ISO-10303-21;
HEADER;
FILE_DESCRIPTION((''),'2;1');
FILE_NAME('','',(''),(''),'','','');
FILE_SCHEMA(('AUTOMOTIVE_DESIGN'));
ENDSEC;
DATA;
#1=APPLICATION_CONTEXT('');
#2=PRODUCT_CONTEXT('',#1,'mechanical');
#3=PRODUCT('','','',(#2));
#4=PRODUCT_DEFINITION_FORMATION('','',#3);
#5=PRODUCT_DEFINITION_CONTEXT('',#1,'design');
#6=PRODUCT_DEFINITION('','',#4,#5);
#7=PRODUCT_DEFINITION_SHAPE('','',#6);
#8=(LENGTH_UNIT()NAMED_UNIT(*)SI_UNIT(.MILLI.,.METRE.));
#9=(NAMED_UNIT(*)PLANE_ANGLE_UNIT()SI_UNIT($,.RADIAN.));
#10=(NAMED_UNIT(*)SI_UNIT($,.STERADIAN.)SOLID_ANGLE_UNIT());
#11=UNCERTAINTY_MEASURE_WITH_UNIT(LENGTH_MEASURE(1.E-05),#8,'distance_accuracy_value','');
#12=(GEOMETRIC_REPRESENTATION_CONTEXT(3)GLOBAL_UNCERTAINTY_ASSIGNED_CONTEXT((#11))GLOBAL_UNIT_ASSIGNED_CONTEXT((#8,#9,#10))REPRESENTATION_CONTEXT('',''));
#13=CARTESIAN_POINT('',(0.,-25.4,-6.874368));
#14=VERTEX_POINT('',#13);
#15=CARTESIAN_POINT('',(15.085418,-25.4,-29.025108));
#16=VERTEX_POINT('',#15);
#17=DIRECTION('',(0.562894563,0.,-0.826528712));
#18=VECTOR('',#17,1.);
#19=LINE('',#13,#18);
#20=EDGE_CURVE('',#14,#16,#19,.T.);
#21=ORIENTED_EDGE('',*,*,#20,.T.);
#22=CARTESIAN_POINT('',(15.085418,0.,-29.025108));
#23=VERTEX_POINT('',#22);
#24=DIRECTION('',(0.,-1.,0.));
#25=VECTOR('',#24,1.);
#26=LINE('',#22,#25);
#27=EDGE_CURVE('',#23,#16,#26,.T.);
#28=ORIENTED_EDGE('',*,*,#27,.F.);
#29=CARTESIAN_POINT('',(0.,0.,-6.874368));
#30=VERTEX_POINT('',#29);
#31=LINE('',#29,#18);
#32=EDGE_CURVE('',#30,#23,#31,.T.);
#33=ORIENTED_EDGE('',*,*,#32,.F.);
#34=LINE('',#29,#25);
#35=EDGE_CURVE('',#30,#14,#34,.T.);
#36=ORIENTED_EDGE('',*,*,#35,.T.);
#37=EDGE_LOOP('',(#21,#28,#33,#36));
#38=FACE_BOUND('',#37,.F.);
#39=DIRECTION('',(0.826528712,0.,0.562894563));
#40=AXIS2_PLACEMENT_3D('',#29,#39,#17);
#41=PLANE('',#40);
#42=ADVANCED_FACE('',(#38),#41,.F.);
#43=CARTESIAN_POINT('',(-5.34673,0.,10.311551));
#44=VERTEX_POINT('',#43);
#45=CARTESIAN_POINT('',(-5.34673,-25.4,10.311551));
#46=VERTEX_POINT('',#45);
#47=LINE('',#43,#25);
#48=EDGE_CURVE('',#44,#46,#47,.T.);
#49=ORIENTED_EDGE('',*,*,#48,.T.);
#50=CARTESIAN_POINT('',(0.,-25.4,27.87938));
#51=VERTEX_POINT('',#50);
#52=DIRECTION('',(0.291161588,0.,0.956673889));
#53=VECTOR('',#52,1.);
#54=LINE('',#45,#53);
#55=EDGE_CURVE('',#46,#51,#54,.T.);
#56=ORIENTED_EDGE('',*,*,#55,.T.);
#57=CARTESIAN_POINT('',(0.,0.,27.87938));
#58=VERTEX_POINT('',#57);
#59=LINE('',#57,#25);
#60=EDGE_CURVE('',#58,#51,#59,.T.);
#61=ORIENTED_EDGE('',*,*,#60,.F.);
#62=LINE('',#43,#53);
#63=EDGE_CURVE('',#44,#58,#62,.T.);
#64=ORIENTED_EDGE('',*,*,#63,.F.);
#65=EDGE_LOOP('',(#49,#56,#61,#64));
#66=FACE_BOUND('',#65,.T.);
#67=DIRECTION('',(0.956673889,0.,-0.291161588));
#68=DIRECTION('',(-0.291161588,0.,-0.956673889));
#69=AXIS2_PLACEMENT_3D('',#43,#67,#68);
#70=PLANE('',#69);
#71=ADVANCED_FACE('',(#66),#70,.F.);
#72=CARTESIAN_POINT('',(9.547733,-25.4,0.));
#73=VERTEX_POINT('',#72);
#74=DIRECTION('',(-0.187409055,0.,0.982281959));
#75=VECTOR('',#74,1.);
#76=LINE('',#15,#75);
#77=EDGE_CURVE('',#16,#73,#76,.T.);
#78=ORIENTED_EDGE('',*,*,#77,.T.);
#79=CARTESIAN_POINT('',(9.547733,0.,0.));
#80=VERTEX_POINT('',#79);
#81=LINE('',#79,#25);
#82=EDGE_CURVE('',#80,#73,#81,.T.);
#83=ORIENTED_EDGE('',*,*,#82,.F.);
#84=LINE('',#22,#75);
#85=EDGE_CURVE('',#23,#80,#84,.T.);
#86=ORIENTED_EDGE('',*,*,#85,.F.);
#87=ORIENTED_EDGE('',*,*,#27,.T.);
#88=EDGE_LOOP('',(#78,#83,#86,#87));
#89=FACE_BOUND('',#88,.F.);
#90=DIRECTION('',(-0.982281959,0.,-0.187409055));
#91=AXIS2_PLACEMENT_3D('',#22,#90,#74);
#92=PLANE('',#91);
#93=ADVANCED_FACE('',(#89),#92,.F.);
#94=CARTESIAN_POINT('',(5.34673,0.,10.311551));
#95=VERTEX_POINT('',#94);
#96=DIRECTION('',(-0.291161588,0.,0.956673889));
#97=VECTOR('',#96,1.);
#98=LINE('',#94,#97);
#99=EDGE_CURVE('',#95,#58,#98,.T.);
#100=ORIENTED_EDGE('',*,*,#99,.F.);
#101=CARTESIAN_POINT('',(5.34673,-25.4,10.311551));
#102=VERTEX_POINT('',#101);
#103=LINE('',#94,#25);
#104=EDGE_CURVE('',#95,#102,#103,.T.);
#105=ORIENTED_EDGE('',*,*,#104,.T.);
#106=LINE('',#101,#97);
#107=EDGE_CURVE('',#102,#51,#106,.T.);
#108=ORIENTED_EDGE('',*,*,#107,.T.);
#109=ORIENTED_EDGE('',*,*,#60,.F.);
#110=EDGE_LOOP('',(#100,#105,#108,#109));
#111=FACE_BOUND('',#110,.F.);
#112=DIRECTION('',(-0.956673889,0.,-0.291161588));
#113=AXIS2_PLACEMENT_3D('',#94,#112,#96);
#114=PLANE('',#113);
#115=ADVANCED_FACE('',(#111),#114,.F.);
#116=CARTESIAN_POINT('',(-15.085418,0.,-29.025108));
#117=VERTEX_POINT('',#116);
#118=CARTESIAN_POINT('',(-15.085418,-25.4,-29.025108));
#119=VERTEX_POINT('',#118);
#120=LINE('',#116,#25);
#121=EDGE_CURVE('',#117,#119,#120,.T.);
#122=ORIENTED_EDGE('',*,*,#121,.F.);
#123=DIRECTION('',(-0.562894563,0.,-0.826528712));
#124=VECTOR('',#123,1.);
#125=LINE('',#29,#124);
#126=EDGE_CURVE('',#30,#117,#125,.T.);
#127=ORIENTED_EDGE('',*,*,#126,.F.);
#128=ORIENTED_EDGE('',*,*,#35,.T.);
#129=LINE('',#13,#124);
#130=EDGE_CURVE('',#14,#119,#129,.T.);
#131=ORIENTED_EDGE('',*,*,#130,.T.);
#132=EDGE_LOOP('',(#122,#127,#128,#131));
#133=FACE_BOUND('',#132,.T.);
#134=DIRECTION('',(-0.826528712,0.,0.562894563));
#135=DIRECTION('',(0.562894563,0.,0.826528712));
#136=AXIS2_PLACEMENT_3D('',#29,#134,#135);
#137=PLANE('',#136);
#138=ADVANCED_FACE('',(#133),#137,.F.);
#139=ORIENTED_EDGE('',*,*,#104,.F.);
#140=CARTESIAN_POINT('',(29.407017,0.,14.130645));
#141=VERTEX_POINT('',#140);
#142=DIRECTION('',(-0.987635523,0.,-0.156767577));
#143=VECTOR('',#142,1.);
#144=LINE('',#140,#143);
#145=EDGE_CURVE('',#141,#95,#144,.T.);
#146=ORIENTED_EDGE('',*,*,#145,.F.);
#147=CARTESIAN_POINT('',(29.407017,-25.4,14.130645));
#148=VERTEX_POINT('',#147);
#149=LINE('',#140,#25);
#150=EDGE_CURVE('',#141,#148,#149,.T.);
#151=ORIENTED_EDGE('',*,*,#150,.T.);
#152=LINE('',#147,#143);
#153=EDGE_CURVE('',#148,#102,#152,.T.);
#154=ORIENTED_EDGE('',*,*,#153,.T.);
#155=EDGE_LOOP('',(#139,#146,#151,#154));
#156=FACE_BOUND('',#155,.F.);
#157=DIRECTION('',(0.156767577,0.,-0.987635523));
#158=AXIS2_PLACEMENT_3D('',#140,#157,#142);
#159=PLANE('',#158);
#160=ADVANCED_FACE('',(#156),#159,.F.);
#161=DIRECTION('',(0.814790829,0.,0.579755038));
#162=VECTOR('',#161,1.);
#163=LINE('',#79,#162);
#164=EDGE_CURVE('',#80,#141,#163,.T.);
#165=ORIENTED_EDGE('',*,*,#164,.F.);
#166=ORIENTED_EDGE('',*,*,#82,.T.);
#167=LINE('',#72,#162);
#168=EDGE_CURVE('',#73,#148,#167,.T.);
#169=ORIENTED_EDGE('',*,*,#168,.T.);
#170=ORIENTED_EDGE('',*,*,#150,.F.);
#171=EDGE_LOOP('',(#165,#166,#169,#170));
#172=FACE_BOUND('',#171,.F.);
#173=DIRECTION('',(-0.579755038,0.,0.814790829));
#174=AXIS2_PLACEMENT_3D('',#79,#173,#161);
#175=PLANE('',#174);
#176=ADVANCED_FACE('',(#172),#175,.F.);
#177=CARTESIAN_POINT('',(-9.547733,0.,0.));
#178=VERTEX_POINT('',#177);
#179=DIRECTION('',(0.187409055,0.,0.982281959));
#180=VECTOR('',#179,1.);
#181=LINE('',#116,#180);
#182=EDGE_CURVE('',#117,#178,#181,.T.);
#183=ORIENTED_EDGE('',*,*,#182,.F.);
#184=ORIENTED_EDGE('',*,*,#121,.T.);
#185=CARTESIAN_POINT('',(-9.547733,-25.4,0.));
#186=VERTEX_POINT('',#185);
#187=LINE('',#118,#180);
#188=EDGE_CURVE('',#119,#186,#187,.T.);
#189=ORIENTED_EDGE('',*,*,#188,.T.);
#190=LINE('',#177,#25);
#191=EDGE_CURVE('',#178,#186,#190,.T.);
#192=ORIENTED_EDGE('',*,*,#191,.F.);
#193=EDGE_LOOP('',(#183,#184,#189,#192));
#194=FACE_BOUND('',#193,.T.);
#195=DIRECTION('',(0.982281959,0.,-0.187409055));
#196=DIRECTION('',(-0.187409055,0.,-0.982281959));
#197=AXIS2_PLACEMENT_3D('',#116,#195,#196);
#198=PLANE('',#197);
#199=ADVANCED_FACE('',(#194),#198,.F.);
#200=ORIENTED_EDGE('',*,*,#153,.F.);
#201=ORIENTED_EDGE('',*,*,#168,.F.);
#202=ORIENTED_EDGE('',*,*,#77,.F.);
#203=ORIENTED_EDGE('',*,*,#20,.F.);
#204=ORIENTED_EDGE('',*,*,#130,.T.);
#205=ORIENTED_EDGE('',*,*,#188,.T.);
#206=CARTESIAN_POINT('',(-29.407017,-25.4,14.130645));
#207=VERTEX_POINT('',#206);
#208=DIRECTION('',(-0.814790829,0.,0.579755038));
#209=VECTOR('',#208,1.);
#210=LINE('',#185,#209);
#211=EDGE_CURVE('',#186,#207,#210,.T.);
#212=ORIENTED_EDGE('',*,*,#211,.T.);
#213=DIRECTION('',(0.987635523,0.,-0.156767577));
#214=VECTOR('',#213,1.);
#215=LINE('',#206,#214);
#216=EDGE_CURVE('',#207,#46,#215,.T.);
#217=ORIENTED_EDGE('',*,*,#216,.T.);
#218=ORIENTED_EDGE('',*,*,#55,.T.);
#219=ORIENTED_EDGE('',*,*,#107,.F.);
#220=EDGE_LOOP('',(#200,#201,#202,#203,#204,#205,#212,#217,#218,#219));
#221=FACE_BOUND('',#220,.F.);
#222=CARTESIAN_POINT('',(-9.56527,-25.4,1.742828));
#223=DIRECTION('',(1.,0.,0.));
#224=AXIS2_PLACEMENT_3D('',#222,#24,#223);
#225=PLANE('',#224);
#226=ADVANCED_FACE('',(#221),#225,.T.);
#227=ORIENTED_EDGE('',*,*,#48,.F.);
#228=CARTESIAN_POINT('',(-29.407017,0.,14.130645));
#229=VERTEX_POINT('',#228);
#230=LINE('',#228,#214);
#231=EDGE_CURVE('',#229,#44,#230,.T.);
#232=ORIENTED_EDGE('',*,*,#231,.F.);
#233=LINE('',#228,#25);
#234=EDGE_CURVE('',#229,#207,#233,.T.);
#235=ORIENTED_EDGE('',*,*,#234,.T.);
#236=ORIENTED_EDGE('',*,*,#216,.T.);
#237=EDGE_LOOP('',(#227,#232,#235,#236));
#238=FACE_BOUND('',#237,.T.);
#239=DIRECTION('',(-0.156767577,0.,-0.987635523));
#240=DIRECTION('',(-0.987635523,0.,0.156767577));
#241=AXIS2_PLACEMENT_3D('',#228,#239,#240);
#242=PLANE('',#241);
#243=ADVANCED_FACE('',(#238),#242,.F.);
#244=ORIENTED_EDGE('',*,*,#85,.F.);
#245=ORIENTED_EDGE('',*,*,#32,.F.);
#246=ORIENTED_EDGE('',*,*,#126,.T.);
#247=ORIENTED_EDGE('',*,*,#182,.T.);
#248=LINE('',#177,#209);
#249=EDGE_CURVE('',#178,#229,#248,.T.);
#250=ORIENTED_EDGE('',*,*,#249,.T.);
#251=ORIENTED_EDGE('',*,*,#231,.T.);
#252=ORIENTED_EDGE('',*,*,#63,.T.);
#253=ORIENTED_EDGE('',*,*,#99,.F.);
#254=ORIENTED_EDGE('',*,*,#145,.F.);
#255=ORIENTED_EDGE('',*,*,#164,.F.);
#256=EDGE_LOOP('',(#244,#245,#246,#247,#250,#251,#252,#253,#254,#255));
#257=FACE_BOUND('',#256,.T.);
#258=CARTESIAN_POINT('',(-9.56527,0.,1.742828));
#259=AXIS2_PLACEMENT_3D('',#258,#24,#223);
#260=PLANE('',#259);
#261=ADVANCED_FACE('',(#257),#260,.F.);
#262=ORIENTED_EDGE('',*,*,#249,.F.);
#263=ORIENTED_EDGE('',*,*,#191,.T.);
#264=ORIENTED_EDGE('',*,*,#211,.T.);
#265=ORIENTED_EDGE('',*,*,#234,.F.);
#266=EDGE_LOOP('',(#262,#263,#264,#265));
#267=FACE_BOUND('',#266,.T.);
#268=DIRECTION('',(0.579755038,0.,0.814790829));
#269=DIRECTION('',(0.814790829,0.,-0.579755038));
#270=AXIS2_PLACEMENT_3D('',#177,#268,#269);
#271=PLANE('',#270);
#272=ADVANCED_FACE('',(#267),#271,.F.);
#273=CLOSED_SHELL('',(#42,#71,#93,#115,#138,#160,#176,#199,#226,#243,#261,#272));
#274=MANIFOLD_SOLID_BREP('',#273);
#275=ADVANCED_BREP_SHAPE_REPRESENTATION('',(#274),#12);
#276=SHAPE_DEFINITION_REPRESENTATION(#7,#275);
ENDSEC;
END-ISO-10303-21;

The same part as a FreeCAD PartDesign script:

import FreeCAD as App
import Part
import Sketcher

V = App.Vector
Q = App.Units.Quantity

doc = App.newDocument("Part")
body = doc.addObject("PartDesign::Body", "Body")

sketch1 = body.newObject("Sketcher::SketchObject", "Sketch")
sketch1.AttachmentSupport = (doc.getObject("XZ_Plane"), [""])
sketch1.MapMode = "FlatFace"
sketch1.addGeometry([
    Part.LineSegment(V(0, -6.874368, 0), V(15.085418, -29.025108, 0)),
    Part.LineSegment(V(15.085418, -29.025108, 0), V(9.547733, 0, 0)),
    Part.LineSegment(V(9.547733, 0, 0), V(29.407017, 14.130645, 0)),
    Part.LineSegment(V(29.407017, 14.130645, 0), V(5.34673, 10.311551, 0)),
    Part.LineSegment(V(5.34673, 10.311551, 0), V(0, 27.87938, 0)),
    Part.LineSegment(V(0, 27.87938, 0), V(0, -6.874368, 0)),
], False)
sketch1.addConstraint([
    Sketcher.Constraint("Coincident", 0, 2, 1, 1),
    Sketcher.Constraint("Coincident", 1, 2, 2, 1),
    Sketcher.Constraint("Coincident", 2, 2, 3, 1),
    Sketcher.Constraint("Coincident", 3, 2, 4, 1),
    Sketcher.Constraint("Coincident", 4, 2, 5, 1),
    Sketcher.Constraint("Coincident", 5, 2, 0, 1),
    Sketcher.Constraint("Vertical", 5),
    Sketcher.Constraint("PointOnObject", 1, 2, -1),
    Sketcher.Constraint("PointOnObject", 4, 2, -2),
    Sketcher.Constraint("DistanceY", 5, 2, 5, 1, Q("34.753748 mm")),
    Sketcher.Constraint("DistanceX", 0, 2, 2, 2, Q("14.321599 mm")),
    Sketcher.Constraint("DistanceX", -1, 1, 0, 2, Q("15.085418 mm")),
    Sketcher.Constraint("DistanceX", -1, 1, 3, 2, Q("5.34673 mm")),
    Sketcher.Constraint("DistanceY", -1, 1, 3, 2, Q("10.311551 mm")),
    Sketcher.Constraint("DistanceY", -1, 1, 4, 2, Q("27.87938 mm")),
    Sketcher.Constraint("DistanceY", 0, 2, 3, 2, Q("39.336659 mm")),
    Sketcher.Constraint("Distance", 1, Q("29.548652 mm")),
    Sketcher.Constraint("Distance", 2, Q("24.373475 mm")),
])
pad1 = body.newObject("PartDesign::Pad", "Pad")
pad1.Profile = sketch1
pad1.Length = Q("1 in")
body2 = doc.addObject("PartDesign::Body", "Body001")
doc.recompute()

body2.BaseFeature = body
doc.recompute()

mirroring = doc.addObject("Part::Mirroring", "Mirroring")
mirroring.Source = body
mirroring.Base = V(0, 0, 0)
mirroring.Normal = V(1, 0, 0)
body3 = doc.addObject("PartDesign::Body", "Body002")
body3.BaseFeature = mirroring
boolean = body2.newObject("PartDesign::Boolean", "Boolean")
boolean.Type = "Fuse"
boolean.addObjects([body3])
doc.recompute()
mirroring.Visibility = False

doc.recompute()
